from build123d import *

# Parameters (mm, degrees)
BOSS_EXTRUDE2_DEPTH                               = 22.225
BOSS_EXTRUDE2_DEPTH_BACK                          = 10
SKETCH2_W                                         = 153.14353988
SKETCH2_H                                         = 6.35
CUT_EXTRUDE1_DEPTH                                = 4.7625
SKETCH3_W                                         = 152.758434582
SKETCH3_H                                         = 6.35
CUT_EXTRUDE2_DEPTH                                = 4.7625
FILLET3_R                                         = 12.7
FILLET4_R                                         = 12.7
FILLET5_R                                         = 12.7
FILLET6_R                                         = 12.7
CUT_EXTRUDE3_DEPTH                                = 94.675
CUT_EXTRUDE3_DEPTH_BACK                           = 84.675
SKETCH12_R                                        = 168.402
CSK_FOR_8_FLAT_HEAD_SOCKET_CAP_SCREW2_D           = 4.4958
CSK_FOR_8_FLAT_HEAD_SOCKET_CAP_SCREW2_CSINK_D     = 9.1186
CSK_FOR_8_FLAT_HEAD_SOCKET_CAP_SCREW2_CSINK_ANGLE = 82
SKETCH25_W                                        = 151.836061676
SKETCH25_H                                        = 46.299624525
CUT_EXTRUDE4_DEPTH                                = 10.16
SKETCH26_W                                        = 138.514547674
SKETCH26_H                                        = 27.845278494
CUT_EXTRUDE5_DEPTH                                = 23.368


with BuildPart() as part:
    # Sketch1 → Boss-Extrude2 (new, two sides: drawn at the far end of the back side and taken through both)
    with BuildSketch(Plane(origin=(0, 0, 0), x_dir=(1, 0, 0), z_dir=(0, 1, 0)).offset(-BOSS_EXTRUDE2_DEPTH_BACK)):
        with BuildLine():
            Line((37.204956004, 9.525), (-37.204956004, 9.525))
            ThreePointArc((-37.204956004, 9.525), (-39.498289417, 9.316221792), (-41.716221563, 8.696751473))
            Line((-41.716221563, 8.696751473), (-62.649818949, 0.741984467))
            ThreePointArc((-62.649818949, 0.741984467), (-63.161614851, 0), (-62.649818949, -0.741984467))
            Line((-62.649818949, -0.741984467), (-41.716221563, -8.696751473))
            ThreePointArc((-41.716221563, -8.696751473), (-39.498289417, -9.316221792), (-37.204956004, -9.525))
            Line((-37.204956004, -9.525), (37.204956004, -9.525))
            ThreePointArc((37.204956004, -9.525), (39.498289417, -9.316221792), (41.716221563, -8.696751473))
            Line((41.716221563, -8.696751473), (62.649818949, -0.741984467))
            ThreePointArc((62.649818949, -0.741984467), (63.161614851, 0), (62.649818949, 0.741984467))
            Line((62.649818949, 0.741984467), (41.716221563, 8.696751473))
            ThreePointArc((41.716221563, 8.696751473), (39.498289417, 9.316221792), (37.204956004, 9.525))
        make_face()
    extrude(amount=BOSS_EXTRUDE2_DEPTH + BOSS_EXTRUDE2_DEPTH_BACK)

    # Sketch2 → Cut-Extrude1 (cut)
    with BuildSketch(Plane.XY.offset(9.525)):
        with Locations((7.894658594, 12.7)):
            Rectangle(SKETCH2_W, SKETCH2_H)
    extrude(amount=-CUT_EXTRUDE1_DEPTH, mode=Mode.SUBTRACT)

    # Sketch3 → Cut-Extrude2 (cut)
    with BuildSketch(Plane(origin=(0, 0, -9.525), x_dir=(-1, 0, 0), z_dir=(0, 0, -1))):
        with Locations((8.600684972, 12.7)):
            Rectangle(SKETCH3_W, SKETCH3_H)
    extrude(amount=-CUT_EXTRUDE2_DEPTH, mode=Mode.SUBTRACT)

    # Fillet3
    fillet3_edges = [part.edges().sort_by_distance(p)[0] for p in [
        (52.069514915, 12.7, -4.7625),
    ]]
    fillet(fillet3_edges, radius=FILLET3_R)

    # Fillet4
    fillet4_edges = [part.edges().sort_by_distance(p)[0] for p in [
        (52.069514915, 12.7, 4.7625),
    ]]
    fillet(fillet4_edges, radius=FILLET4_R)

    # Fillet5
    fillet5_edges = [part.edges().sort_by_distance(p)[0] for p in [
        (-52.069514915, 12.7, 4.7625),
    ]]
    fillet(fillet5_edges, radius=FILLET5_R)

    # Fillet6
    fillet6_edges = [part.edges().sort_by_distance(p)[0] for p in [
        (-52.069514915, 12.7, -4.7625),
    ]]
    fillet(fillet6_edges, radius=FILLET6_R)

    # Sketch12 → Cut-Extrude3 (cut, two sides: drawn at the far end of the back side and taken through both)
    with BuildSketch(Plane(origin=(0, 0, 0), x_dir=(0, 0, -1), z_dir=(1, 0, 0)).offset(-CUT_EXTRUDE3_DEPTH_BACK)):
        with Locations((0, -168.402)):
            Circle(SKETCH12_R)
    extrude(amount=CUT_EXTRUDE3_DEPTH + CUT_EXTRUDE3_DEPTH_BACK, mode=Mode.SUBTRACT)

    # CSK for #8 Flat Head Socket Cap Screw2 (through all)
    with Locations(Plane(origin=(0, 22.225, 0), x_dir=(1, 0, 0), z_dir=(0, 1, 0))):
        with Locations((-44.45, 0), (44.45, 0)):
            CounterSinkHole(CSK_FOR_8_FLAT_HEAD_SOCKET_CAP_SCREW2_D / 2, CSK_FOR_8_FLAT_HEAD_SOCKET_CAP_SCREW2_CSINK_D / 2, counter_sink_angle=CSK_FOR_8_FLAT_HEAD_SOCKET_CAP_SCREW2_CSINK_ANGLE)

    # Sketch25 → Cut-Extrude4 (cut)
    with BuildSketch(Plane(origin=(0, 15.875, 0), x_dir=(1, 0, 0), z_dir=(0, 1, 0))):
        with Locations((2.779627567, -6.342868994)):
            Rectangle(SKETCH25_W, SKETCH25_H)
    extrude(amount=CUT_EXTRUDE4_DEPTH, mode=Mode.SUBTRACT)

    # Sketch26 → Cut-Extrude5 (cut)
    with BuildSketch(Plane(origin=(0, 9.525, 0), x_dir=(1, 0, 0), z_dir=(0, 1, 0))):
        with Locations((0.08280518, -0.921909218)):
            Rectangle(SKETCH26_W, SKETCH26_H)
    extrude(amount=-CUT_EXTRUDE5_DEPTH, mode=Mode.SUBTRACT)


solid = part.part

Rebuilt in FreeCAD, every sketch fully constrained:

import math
import FreeCAD as App
import Part
import Sketcher
from FreeCAD import Vector
Q = App.Units.Quantity


def edges_at(feature, points):
    """Names of the edges that pass closest to the given points."""
    edges = feature.Shape.Edges
    near = lambda p: min(range(len(edges)), key=lambda i: edges[i].distToShape(Part.Vertex(*p))[0])
    return sorted({f"Edge{near(p) + 1}" for p in points})

doc = App.newDocument("Part")
params = doc.addObject("Spreadsheet::Sheet", "Params")
for row, (alias, value) in enumerate([
    ("sketch1_radius", "0.5 in"),
    ("sketch1_radius2", "0.03125 in"),
    ("pad1_length", "0.875 in"),
    ("pad1_length2", "10 mm"),
    ("sketch2_height", "0.25 in"),
    ("pocket1_length", "0.1875 in"),
    ("sketch3_height", "0.25 in"),
    ("pocket2_length", "0.1875 in"),
    ("fillet_radius", "0.5 in"),
    ("fillet2_radius", "0.5 in"),
    ("fillet3_radius", "0.5 in"),
    ("fillet4_radius", "0.5 in"),
    ("sketch4_diameter", "13.26 in"),
    ("sketch5_diameter", "0.177 in"),
    ("hole_diameter", "0.177 in"),
    ("hole_csink_diameter", "0.359 in"),
    ("pocket4_length", "0.4 in"),
    ("pocket5_length", "0.92 in"),
], start=1):
    params.set(f"A{row}", alias)
    params.set(f"B{row}", "=" + value)
    params.setAlias(f"B{row}", alias)

body = doc.addObject("PartDesign::Body", "Body")

# Sketch on XZ plane
sketch1 = body.newObject("Sketcher::SketchObject", "Sketch")
sketch1.AttachmentSupport = (doc.getObject("XZ_Plane"), [""])
sketch1.MapMode = "FlatFace"
sketch1.addGeometry([
    Part.LineSegment(Vector(37.2, -9.5, 0), Vector(-37.2, -9.5, 0)),  # 0
    Part.ArcOfCircle(Part.Circle(Vector(-37.2, 3.2, 0), Vector(0, 0, 1), 12.7), math.radians(-111), math.radians(-90)),  # 1
    Part.LineSegment(Vector(-41.7, -8.7, 0), Vector(-62.6, -0.7, 0)),  # 2
    Part.ArcOfCircle(Part.Circle(Vector(-62.4, 0, 0), Vector(0, 0, 1), 0.8), math.radians(111), math.radians(249)),  # 3
    Part.LineSegment(Vector(-62.6, 0.7, 0), Vector(-41.7, 8.7, 0)),  # 4
    Part.ArcOfCircle(Part.Circle(Vector(-37.2, -3.2, 0), Vector(0, 0, 1), 12.7), math.radians(90), math.radians(111)),  # 5
    Part.LineSegment(Vector(-37.2, 9.5, 0), Vector(37.2, 9.5, 0)),  # 6
    Part.ArcOfCircle(Part.Circle(Vector(37.2, -3.2, 0), Vector(0, 0, 1), 12.7), math.radians(69), math.radians(90)),  # 7
    Part.LineSegment(Vector(41.7, 8.7, 0), Vector(62.6, 0.7, 0)),  # 8
    Part.ArcOfCircle(Part.Circle(Vector(62.4, 0, 0), Vector(0, 0, 1), 0.8), math.radians(-69), math.radians(69)),  # 9
    Part.LineSegment(Vector(62.6, -0.7, 0), Vector(41.7, -8.7, 0)),  # 10
    Part.ArcOfCircle(Part.Circle(Vector(37.2, 3.2, 0), Vector(0, 0, 1), 12.7), math.radians(-90), math.radians(-69)),  # 11
], False)
sketch1.addConstraint([
    Sketcher.Constraint("Tangent", 0, 2, 1, 2),
    Sketcher.Constraint("Tangent", 1, 1, 2, 1),
    Sketcher.Constraint("Tangent", 2, 2, 3, 2),
    Sketcher.Constraint("Tangent", 3, 1, 4, 1),
    Sketcher.Constraint("Tangent", 4, 2, 5, 2),
    Sketcher.Constraint("Tangent", 5, 1, 6, 1),
    Sketcher.Constraint("Tangent", 6, 2, 7, 2),
    Sketcher.Constraint("Tangent", 7, 1, 8, 1),
    Sketcher.Constraint("Tangent", 8, 2, 9, 2),
    Sketcher.Constraint("Tangent", 9, 1, 10, 1),
    Sketcher.Constraint("Tangent", 10, 2, 11, 2),
    Sketcher.Constraint("Tangent", 11, 1, 0, 1),
    Sketcher.Constraint("Horizontal", 0),
    Sketcher.Constraint("Horizontal", 6),
    Sketcher.Constraint("Equal", 1, 5),
    Sketcher.Constraint("Equal", 5, 7),
    Sketcher.Constraint("Equal", 3, 9),
    Sketcher.Constraint("Equal", 7, 11),
    Sketcher.Constraint("Symmetric", 1, 3, 7, 3, -1, 1),
    Sketcher.Constraint("Symmetric", 3, 3, 9, 3, -1, 1),
    Sketcher.Constraint("Symmetric", 4, 2, 7, 1, -2),
    Sketcher.Constraint("Parallel", 4, 10),
    Sketcher.Constraint("Radius", 1, Q("0.5 in")),
    Sketcher.Constraint("Radius", 3, Q("0.03125 in")),
    Sketcher.Constraint("DistanceY", 5, 3, 1, 3, Q("0.25 in")),
    Sketcher.Constraint("DistanceX", 0, 2, 0, 1, 74.409912),
    Sketcher.Constraint("DistanceX", 1, 1, -1, 1, 41.716222),
])
sketch1.setExpression("Constraints[22]", "Params.sketch1_radius")
sketch1.setExpression("Constraints[23]", "Params.sketch1_radius2")
pad1 = body.newObject("PartDesign::Pad", "Pad")
pad1.Profile = sketch1
pad1.Type = "TwoLengths"
pad1.setExpression("Length", "Params.pad1_length")
pad1.setExpression("Length2", "Params.pad1_length2")
pad1.Reversed = True

# Sketch on XY plane
sketch2 = body.newObject("Sketcher::SketchObject", "Sketch001")
sketch2.AttachmentSupport = (doc.getObject("XY_Plane"), [""])
sketch2.MapMode = "FlatFace"
sketch2.AttachmentOffset = App.Placement(Vector(0, 0, 0.375 * 25.4), App.Rotation())
sketch2.addGeometry([
    Part.LineSegment(Vector(-69, 16, 0), Vector(-69, 10, 0)),
    Part.LineSegment(Vector(-69, 10, 0), Vector(84, 10, 0)),
    Part.LineSegment(Vector(84, 10, 0), Vector(84, 16, 0)),
    Part.LineSegment(Vector(84, 16, 0), Vector(-69, 16, 0)),
], False)
sketch2.addConstraint([
    Sketcher.Constraint("Coincident", 0, 2, 1, 1),
    Sketcher.Constraint("Coincident", 1, 2, 2, 1),
    Sketcher.Constraint("Coincident", 2, 2, 3, 1),
    Sketcher.Constraint("Coincident", 3, 2, 0, 1),
    Sketcher.Constraint("Vertical", 0),
    Sketcher.Constraint("Horizontal", 1),
    Sketcher.Constraint("Vertical", 2),
    Sketcher.Constraint("Horizontal", 3),
    Sketcher.Constraint("DistanceY", 0, 2, 0, 1, Q("0.25 in")),
    Sketcher.Constraint("DistanceY", -1, 1, 0, 2, Q("0.375 in")),
    Sketcher.Constraint("DistanceX", 1, 1, 1, 2, 153.14354),
    Sketcher.Constraint("DistanceX", 0, 2, -1, 1, 68.677111),
])
sketch2.setExpression("Constraints[8]", "Params.sketch2_height")
pocket1 = body.newObject("PartDesign::Pocket", "Pocket")
pocket1.Profile = sketch2
pocket1.setExpression("Length", "Params.pocket1_length")

# Sketch on XY plane
sketch3 = body.newObject("Sketcher::SketchObject", "Sketch002")
sketch3.AttachmentSupport = (doc.getObject("XY_Plane"), [""])
sketch3.MapMode = "FlatFace"
sketch3.AttachmentOffset = App.Placement(Vector(0, 0, -0.375 * 25.4), App.Rotation())
sketch3.addGeometry([
    Part.LineSegment(Vector(68, 16, 0), Vector(68, 10, 0)),
    Part.LineSegment(Vector(68, 10, 0), Vector(-85, 10, 0)),
    Part.LineSegment(Vector(-85, 10, 0), Vector(-85, 16, 0)),
    Part.LineSegment(Vector(-85, 16, 0), Vector(68, 16, 0)),
], False)
sketch3.addConstraint([
    Sketcher.Constraint("Coincident", 0, 2, 1, 1),
    Sketcher.Constraint("Coincident", 1, 2, 2, 1),
    Sketcher.Constraint("Coincident", 2, 2, 3, 1),
    Sketcher.Constraint("Coincident", 3, 2, 0, 1),
    Sketcher.Constraint("Vertical", 0),
    Sketcher.Constraint("Horizontal", 1),
    Sketcher.Constraint("Vertical", 2),
    Sketcher.Constraint("Horizontal", 3),
    Sketcher.Constraint("DistanceY", 0, 2, 0, 1, Q("0.25 in")),
    Sketcher.Constraint("DistanceY", -1, 1, 0, 2, Q("0.375 in")),
    Sketcher.Constraint("DistanceX", 1, 2, 1, 1, 152.758435),
    Sketcher.Constraint("DistanceX", -1, 1, 0, 2, 67.778532),
])
sketch3.setExpression("Constraints[8]", "Params.sketch3_height")
pocket2 = body.newObject("PartDesign::Pocket", "Pocket001")
pocket2.Profile = sketch3
pocket2.setExpression("Length", "Params.pocket2_length")
pocket2.Reversed = True
doc.recompute()

fillet = body.newObject("PartDesign::Fillet", "Fillet")
fillet.Base = (pocket2, edges_at(pocket2, [(52.07, 12.7, -4.763)]))
fillet.setExpression("Radius", "Params.fillet_radius")
doc.recompute()

fillet2 = body.newObject("PartDesign::Fillet", "Fillet001")
fillet2.Base = (fillet, edges_at(fillet, [(52.07, 12.7, 4.763)]))
fillet2.setExpression("Radius", "Params.fillet2_radius")
doc.recompute()

fillet3 = body.newObject("PartDesign::Fillet", "Fillet002")
fillet3.Base = (fillet2, edges_at(fillet2, [(-52.07, 12.7, 4.763)]))
fillet3.setExpression("Radius", "Params.fillet3_radius")
doc.recompute()

fillet4 = body.newObject("PartDesign::Fillet", "Fillet003")
fillet4.Base = (fillet3, edges_at(fillet3, [(-52.07, 12.7, -4.763)]))
fillet4.setExpression("Radius", "Params.fillet4_radius")

# Sketch on YZ plane
sketch4 = body.newObject("Sketcher::SketchObject", "Sketch003")
sketch4.AttachmentSupport = (doc.getObject("YZ_Plane"), [""])
sketch4.MapMode = "FlatFace"
sketch4.addGeometry(Part.Circle(Vector(-168, 0, 0), Vector(0, 0, 1), 168), False)
sketch4.addConstraint([
    Sketcher.Constraint("PointOnObject", 0, 3, -1),
    Sketcher.Constraint("Diameter", 0, Q("13.26 in")),
    Sketcher.Constraint("DistanceX", 0, 3, -1, 1, Q("6.63 in")),
])
sketch4.setExpression("Constraints[1]", "Params.sketch4_diameter")
pocket3 = body.newObject("PartDesign::Pocket", "Pocket002")
pocket3.Profile = sketch4
pocket3.Type = "ThroughAll"
pocket3.Midplane = True

# Sketch on XZ plane
sketch5 = body.newObject("Sketcher::SketchObject", "Sketch004")
sketch5.AttachmentSupport = (doc.getObject("XZ_Plane"), [""])
sketch5.MapMode = "FlatFace"
sketch5.AttachmentOffset = App.Placement(Vector(0, 0, -0.875 * 25.4), App.Rotation())
sketch5.addGeometry([
    Part.Circle(Vector(-44.5, 0, 0), Vector(0, 0, 1), 2.2),
    Part.Circle(Vector(44.5, 0, 0), Vector(0, 0, 1), 2.2),
], False)
sketch5.addConstraint([
    Sketcher.Constraint("Equal", 0, 1),
    Sketcher.Constraint("Symmetric", 0, 3, 1, 3, -1, 1),
    Sketcher.Constraint("PointOnObject", 0, 3, -1),
    Sketcher.Constraint("Diameter", 0, Q("0.177 in")),
    Sketcher.Constraint("DistanceX", 0, 3, 1, 3, Q("3.5 in")),
])
sketch5.setExpression("Constraints[3]", "Params.sketch5_diameter")
doc.recompute()
hole = body.newObject("PartDesign::Hole", "Hole")
hole.Profile = sketch5
hole.ThreadType = "None"
hole.setExpression("Diameter", "Params.hole_diameter")
hole.DepthType = "ThroughAll"
hole.HoleCutType = "Countersink"
hole.setExpression("HoleCutDiameter", "Params.hole_csink_diameter")
hole.HoleCutCountersinkAngle = 82
hole.Reversed = True

# Sketch on XZ plane
sketch6 = body.newObject("Sketcher::SketchObject", "Sketch005")
sketch6.AttachmentSupport = (doc.getObject("XZ_Plane"), [""])
sketch6.MapMode = "FlatFace"
sketch6.AttachmentOffset = App.Placement(Vector(0, 0, -0.625 * 25.4), App.Rotation())
sketch6.addGeometry([
    Part.LineSegment(Vector(-73, -17, 0), Vector(-73, 29, 0)),
    Part.LineSegment(Vector(-73, 29, 0), Vector(79, 29, 0)),
    Part.LineSegment(Vector(79, 29, 0), Vector(79, -17, 0)),
    Part.LineSegment(Vector(79, -17, 0), Vector(-73, -17, 0)),
], False)
sketch6.addConstraint([
    Sketcher.Constraint("Coincident", 0, 2, 1, 1),
    Sketcher.Constraint("Coincident", 1, 2, 2, 1),
    Sketcher.Constraint("Coincident", 2, 2, 3, 1),
    Sketcher.Constraint("Coincident", 3, 2, 0, 1),
    Sketcher.Constraint("Vertical", 0),
    Sketcher.Constraint("Horizontal", 1),
    Sketcher.Constraint("Vertical", 2),
    Sketcher.Constraint("Horizontal", 3),
    Sketcher.Constraint("DistanceX", 1, 1, 1, 2, 151.836062),
    Sketcher.Constraint("DistanceY", 0, 1, 0, 2, 46.299625),
    Sketcher.Constraint("DistanceY", -1, 1, 0, 2, 29.492681),
    Sketcher.Constraint("DistanceX", -1, 1, 1, 2, 78.697658),
])
pocket4 = body.newObject("PartDesign::Pocket", "Pocket003")
pocket4.Profile = sketch6
pocket4.setExpression("Length", "Params.pocket4_length")

# Sketch on XZ plane
sketch7 = body.newObject("Sketcher::SketchObject", "Sketch006")
sketch7.AttachmentSupport = (doc.getObject("XZ_Plane"), [""])
sketch7.MapMode = "FlatFace"
sketch7.AttachmentOffset = App.Placement(Vector(0, 0, -0.375 * 25.4), App.Rotation())
sketch7.addGeometry([
    Part.LineSegment(Vector(-69, -13, 0), Vector(-69, 15, 0)),
    Part.LineSegment(Vector(-69, 15, 0), Vector(69, 15, 0)),
    Part.LineSegment(Vector(69, 15, 0), Vector(69, -13, 0)),
    Part.LineSegment(Vector(69, -13, 0), Vector(-69, -13, 0)),
], False)
sketch7.addConstraint([
    Sketcher.Constraint("Coincident", 0, 2, 1, 1),
    Sketcher.Constraint("Coincident", 1, 2, 2, 1),
    Sketcher.Constraint("Coincident", 2, 2, 3, 1),
    Sketcher.Constraint("Coincident", 3, 2, 0, 1),
    Sketcher.Constraint("Vertical", 0),
    Sketcher.Constraint("Horizontal", 1),
    Sketcher.Constraint("Vertical", 2),
    Sketcher.Constraint("Horizontal", 3),
    Sketcher.Constraint("DistanceY", 0, 1, 0, 2, 27.845278),
    Sketcher.Constraint("DistanceX", 1, 1, 1, 2, 138.514548),
    Sketcher.Constraint("DistanceX", 0, 2, -1, 1, 69.174469),
    Sketcher.Constraint("DistanceY", -1, 1, 0, 2, 14.844548),
])
pocket5 = body.newObject("PartDesign::Pocket", "Pocket004")
pocket5.Profile = sketch7
pocket5.setExpression("Length", "Params.pocket5_length")
pocket5.Reversed = True

doc.recompute()
